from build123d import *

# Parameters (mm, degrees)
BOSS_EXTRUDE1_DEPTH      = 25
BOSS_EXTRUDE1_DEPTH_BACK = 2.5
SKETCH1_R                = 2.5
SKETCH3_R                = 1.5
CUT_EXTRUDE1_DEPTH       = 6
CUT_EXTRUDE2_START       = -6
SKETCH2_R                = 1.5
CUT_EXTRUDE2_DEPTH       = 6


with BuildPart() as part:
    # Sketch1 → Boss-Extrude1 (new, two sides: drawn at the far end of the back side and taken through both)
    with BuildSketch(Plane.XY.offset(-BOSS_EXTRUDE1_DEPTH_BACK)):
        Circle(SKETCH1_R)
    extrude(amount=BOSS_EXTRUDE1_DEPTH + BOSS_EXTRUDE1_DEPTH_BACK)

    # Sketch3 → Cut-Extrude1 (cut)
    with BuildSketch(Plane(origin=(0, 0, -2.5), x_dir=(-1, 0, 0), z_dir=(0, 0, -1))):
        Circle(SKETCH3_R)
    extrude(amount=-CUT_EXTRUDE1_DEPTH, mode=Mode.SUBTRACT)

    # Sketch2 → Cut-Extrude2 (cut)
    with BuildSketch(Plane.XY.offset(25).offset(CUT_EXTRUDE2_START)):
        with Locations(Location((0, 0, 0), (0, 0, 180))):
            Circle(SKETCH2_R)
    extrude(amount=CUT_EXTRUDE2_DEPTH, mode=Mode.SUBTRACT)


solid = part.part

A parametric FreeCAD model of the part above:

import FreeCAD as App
import Part
import Sketcher
from FreeCAD import Vector

doc = App.newDocument("Part")
body = doc.addObject("PartDesign::Body", "Body")

sketch1 = body.newObject("Sketcher::SketchObject", "Sketch")
sketch1.AttachmentSupport = (doc.getObject("XY_Plane"), [""])
sketch1.MapMode = "FlatFace"
sketch1.addGeometry(Part.Circle(Vector(0, 0, 0), Vector(0, 0, 1), 2.5), False)
sketch1.addConstraint([
    Sketcher.Constraint("Coincident", 0, 3, -1, 1),
    Sketcher.Constraint("Diameter", 0, 5.0),
])
pad1 = body.newObject("PartDesign::Pad", "Pad")
pad1.Profile = sketch1
pad1.Type = "TwoLengths"
pad1.Length = 25
pad1.Length2 = 2.5

sketch2 = body.newObject("Sketcher::SketchObject", "Sketch001")
sketch2.AttachmentSupport = (doc.getObject("XY_Plane"), [""])
sketch2.MapMode = "FlatFace"
sketch2.AttachmentOffset = App.Placement(Vector(0, 0, -2.5), App.Rotation())
sketch2.addGeometry(Part.Circle(Vector(0, 0, 0), Vector(0, 0, 1), 1.5), False)
sketch2.addConstraint([
    Sketcher.Constraint("Coincident", 0, 3, -1, 1),
    Sketcher.Constraint("Diameter", 0, 3.0),
])
pocket1 = body.newObject("PartDesign::Pocket", "Pocket")
pocket1.Profile = sketch2
pocket1.Length = 6
pocket1.Reversed = True

sketch3 = body.newObject("Sketcher::SketchObject", "Sketch002")
sketch3.AttachmentSupport = (doc.getObject("XY_Plane"), [""])
sketch3.MapMode = "FlatFace"
sketch3.AttachmentOffset = App.Placement(Vector(0, 0, 19), App.Rotation())
sketch3.addGeometry(Part.Circle(Vector(0, 0, 0), Vector(0, 0, 1), 1.5), False)
sketch3.addConstraint([
    Sketcher.Constraint("Coincident", 0, 3, -1, 1),
    Sketcher.Constraint("Diameter", 0, 3.0),
])
pocket2 = body.newObject("PartDesign::Pocket", "Pocket001")
pocket2.Profile = sketch3
pocket2.Length = 6
pocket2.Reversed = True

doc.recompute()
